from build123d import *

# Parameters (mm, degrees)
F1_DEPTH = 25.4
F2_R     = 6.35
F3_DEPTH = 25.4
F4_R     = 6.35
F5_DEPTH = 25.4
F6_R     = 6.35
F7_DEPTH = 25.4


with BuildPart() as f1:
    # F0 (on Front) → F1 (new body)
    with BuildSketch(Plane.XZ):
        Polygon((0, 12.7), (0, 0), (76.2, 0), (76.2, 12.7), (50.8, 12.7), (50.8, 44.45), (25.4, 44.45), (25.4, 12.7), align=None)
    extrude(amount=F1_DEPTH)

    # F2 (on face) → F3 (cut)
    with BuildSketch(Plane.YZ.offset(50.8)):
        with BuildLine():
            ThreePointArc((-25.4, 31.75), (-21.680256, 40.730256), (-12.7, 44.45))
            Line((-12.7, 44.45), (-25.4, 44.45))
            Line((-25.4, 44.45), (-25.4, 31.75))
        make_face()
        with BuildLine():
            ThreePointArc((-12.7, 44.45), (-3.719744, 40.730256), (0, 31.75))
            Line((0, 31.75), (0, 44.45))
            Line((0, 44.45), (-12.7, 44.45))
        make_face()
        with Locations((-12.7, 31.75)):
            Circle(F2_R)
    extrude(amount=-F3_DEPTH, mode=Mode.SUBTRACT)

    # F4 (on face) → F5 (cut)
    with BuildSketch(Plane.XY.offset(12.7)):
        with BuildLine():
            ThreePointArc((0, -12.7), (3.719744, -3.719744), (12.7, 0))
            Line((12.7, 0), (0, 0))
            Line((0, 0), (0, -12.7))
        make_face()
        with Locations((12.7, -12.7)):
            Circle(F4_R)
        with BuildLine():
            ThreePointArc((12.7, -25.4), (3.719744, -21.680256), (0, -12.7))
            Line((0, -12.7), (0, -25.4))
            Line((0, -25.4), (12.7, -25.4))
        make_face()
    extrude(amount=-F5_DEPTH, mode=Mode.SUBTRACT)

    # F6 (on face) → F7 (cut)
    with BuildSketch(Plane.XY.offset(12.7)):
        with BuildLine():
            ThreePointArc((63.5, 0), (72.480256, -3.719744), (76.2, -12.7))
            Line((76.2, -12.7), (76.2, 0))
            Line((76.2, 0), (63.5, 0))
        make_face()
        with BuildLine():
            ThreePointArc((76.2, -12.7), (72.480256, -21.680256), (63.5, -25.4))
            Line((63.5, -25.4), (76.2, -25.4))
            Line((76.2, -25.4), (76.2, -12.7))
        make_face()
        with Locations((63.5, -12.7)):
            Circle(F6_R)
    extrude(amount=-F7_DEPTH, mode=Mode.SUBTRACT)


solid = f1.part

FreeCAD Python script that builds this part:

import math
import FreeCAD as App
import Part
import Sketcher
from FreeCAD import Vector
Q = App.Units.Quantity

doc = App.newDocument("Part")
body = doc.addObject("PartDesign::Body", "Body")

# Sketch on XZ plane
sketch1 = doc.addObject("Sketcher::SketchObject", "Sketch")
body.addObject(sketch1)
sketch1.AttachmentSupport = (doc.XZ_Plane, [""])
sketch1.MapMode = "FlatFace"
sketch1.addGeometry(Part.LineSegment(Vector(0, 12.7, 0), Vector(0, 0, 0)), False)
sketch1.addGeometry(Part.LineSegment(Vector(0, 0, 0), Vector(76.2, 0, 0)), False)
sketch1.addGeometry(Part.LineSegment(Vector(76.2, 0, 0), Vector(76.2, 12.7, 0)), False)
sketch1.addGeometry(Part.LineSegment(Vector(76.2, 12.7, 0), Vector(50.8, 12.7, 0)), False)
sketch1.addGeometry(Part.LineSegment(Vector(50.8, 12.7, 0), Vector(50.8, 44.45, 0)), False)
sketch1.addGeometry(Part.LineSegment(Vector(50.8, 44.45, 0), Vector(25.4, 44.45, 0)), False)
sketch1.addGeometry(Part.LineSegment(Vector(25.4, 44.45, 0), Vector(25.4, 12.7, 0)), False)
sketch1.addGeometry(Part.LineSegment(Vector(25.4, 12.7, 0), Vector(0, 12.7, 0)), False)
sketch1.addConstraint(Sketcher.Constraint("Coincident", 0, 2, 1, 1))
sketch1.addConstraint(Sketcher.Constraint("Coincident", 1, 2, 2, 1))
sketch1.addConstraint(Sketcher.Constraint("Coincident", 2, 2, 3, 1))
sketch1.addConstraint(Sketcher.Constraint("Coincident", 3, 2, 4, 1))
sketch1.addConstraint(Sketcher.Constraint("Coincident", 4, 2, 5, 1))
sketch1.addConstraint(Sketcher.Constraint("Coincident", 5, 2, 6, 1))
sketch1.addConstraint(Sketcher.Constraint("Coincident", 6, 2, 7, 1))
sketch1.addConstraint(Sketcher.Constraint("Coincident", 7, 2, 0, 1))
sketch1.addConstraint(Sketcher.Constraint("Vertical", 0))
sketch1.addConstraint(Sketcher.Constraint("Horizontal", 1))
sketch1.addConstraint(Sketcher.Constraint("Vertical", 2))
sketch1.addConstraint(Sketcher.Constraint("Horizontal", 3))
sketch1.addConstraint(Sketcher.Constraint("Vertical", 4))
sketch1.addConstraint(Sketcher.Constraint("Horizontal", 5))
sketch1.addConstraint(Sketcher.Constraint("Vertical", 6))
sketch1.addConstraint(Sketcher.Constraint("Horizontal", 7))
sketch1.addConstraint(Sketcher.Constraint("Coincident", 0, 2, -1, 1))
sketch1.addConstraint(Sketcher.Constraint("Horizontal", 3, 2, 6, 2))
sketch1.addConstraint(Sketcher.Constraint("Equal", 3, 5))
sketch1.addConstraint(Sketcher.Constraint("Equal", 5, 7))
sketch1.addConstraint(Sketcher.Constraint("DistanceX", 1, 1, 1, 2, Q("3 in")))
sketch1.addConstraint(Sketcher.Constraint("DistanceY", 0, 2, 0, 1, Q("0.5 in")))
sketch1.addConstraint(Sketcher.Constraint("DistanceY", 4, 1, 4, 2, Q("1.25 in")))
pad1 = doc.addObject("PartDesign::Pad", "Pad")
body.addObject(pad1)
pad1.Profile = sketch1
pad1.Length = Q("1 in")

# Sketch on YZ plane
sketch2 = doc.addObject("Sketcher::SketchObject", "Sketch001")
body.addObject(sketch2)
sketch2.AttachmentSupport = (doc.YZ_Plane, [""])
sketch2.MapMode = "FlatFace"
sketch2.AttachmentOffset = App.Placement(Vector(0, 0, 2 * 25.4), App.Rotation())
sketch2.addGeometry(Part.ArcOfCircle(Part.Circle(Vector(-12.7, 31.75, 0), Vector(0, 0, 1), 12.7), math.radians(90.000002), math.radians(179.999998)), False)
sketch2.addGeometry(Part.LineSegment(Vector(-12.7, 44.45, 0), Vector(-25.4, 44.45, 0)), False)
sketch2.addGeometry(Part.LineSegment(Vector(-25.4, 44.45, 0), Vector(-25.4, 31.75, 0)), False)
sketch2.addGeometry(Part.ArcOfCircle(Part.Circle(Vector(-12.7, 31.75, 0), Vector(0, 0, 1), 12.7), math.radians(0.000002), math.radians(89.999998)), False)
sketch2.addGeometry(Part.LineSegment(Vector(0, 31.75, 0), Vector(0, 44.45, 0)), False)
sketch2.addGeometry(Part.LineSegment(Vector(0, 44.45, 0), Vector(-12.7, 44.45, 0)), False)
sketch2.addGeometry(Part.Circle(Vector(-12.7, 31.75, 0), Vector(0, 0, 1), 6.35), False)
sketch2.addConstraint(Sketcher.Constraint("Tangent", 0, 1, 1, 1))
sketch2.addConstraint(Sketcher.Constraint("Coincident", 1, 2, 2, 1))
sketch2.addConstraint(Sketcher.Constraint("Tangent", 2, 2, 0, 2))
sketch2.addConstraint(Sketcher.Constraint("Tangent", 3, 1, 4, 1))
sketch2.addConstraint(Sketcher.Constraint("Coincident", 4, 2, 5, 1))
sketch2.addConstraint(Sketcher.Constraint("Tangent", 5, 2, 3, 2))
sketch2.addConstraint(Sketcher.Constraint("Horizontal", 1))
sketch2.addConstraint(Sketcher.Constraint("Vertical", 2))
sketch2.addConstraint(Sketcher.Constraint("Vertical", 4))
sketch2.addConstraint(Sketcher.Constraint("Horizontal", 5))
sketch2.addConstraint(Sketcher.Constraint("Coincident", 3, 3, 0, 3))
sketch2.addConstraint(Sketcher.Constraint("Coincident", 6, 3, 0, 3))
sketch2.addConstraint(Sketcher.Constraint("Equal", 0, 3))
sketch2.addConstraint(Sketcher.Constraint("PointOnObject", 3, 1, -2))
sketch2.addConstraint(Sketcher.Constraint("Diameter", 6, Q("0.5 in")))
sketch2.addConstraint(Sketcher.Constraint("Radius", 0, Q("0.5 in")))
sketch2.addConstraint(Sketcher.Constraint("DistanceY", -1, 1, 0, 3, Q("1.25 in")))
pocket1 = doc.addObject("PartDesign::Pocket", "Pocket")
body.addObject(pocket1)
pocket1.Profile = sketch2
pocket1.Length = Q("1 in")

# Sketch on XY plane
sketch3 = doc.addObject("Sketcher::SketchObject", "Sketch002")
body.addObject(sketch3)
sketch3.AttachmentSupport = (doc.XY_Plane, [""])
sketch3.MapMode = "FlatFace"
sketch3.AttachmentOffset = App.Placement(Vector(0, 0, 0.5 * 25.4), App.Rotation())
sketch3.addGeometry(Part.ArcOfCircle(Part.Circle(Vector(12.7, -12.7, 0), Vector(0, 0, 1), 12.7), math.radians(90.000002), math.radians(179.999998)), False)
sketch3.addGeometry(Part.LineSegment(Vector(12.7, 0, 0), Vector(0, 0, 0)), False)
sketch3.addGeometry(Part.LineSegment(Vector(0, 0, 0), Vector(0, -12.7, 0)), False)
sketch3.addGeometry(Part.Circle(Vector(12.7, -12.7, 0), Vector(0, 0, 1), 6.35), False)
sketch3.addGeometry(Part.ArcOfCircle(Part.Circle(Vector(12.7, -12.7, 0), Vector(0, 0, 1), 12.7), math.radians(-179.999998), math.radians(-90.000002)), False)
sketch3.addGeometry(Part.LineSegment(Vector(0, -12.7, 0), Vector(0, -25.4, 0)), False)
sketch3.addGeometry(Part.LineSegment(Vector(0, -25.4, 0), Vector(12.7, -25.4, 0)), False)
sketch3.addConstraint(Sketcher.Constraint("Tangent", 0, 1, 1, 1))
sketch3.addConstraint(Sketcher.Constraint("Coincident", 1, 2, 2, 1))
sketch3.addConstraint(Sketcher.Constraint("Tangent", 2, 2, 0, 2))
sketch3.addConstraint(Sketcher.Constraint("Tangent", 4, 1, 5, 1))
sketch3.addConstraint(Sketcher.Constraint("Coincident", 5, 2, 6, 1))
sketch3.addConstraint(Sketcher.Constraint("Tangent", 6, 2, 4, 2))
sketch3.addConstraint(Sketcher.Constraint("Horizontal", 1))
sketch3.addConstraint(Sketcher.Constraint("Vertical", 2))
sketch3.addConstraint(Sketcher.Constraint("Vertical", 5))
sketch3.addConstraint(Sketcher.Constraint("Horizontal", 6))
sketch3.addConstraint(Sketcher.Constraint("Coincident", 1, 2, -1, 1))
sketch3.addConstraint(Sketcher.Constraint("Coincident", 3, 3, 0, 3))
sketch3.addConstraint(Sketcher.Constraint("Coincident", 4, 3, 0, 3))
sketch3.addConstraint(Sketcher.Constraint("Equal", 0, 4))
sketch3.addConstraint(Sketcher.Constraint("Diameter", 3, Q("0.5 in")))
sketch3.addConstraint(Sketcher.Constraint("Radius", 0, Q("0.5 in")))
pocket2 = doc.addObject("PartDesign::Pocket", "Pocket001")
body.addObject(pocket2)
pocket2.Profile = sketch3
pocket2.Length = Q("1 in")

# Sketch on XY plane
sketch4 = doc.addObject("Sketcher::SketchObject", "Sketch003")
body.addObject(sketch4)
sketch4.AttachmentSupport = (doc.XY_Plane, [""])
sketch4.MapMode = "FlatFace"
sketch4.AttachmentOffset = App.Placement(Vector(0, 0, 0.5 * 25.4), App.Rotation())
sketch4.addGeometry(Part.ArcOfCircle(Part.Circle(Vector(63.5, -12.7, 0), Vector(0, 0, 1), 12.7), math.radians(0.000002), math.radians(89.999998)), False)
sketch4.addGeometry(Part.LineSegment(Vector(76.2, -12.7, 0), Vector(76.2, 0, 0)), False)
sketch4.addGeometry(Part.LineSegment(Vector(76.2, 0, 0), Vector(63.5, 0, 0)), False)
sketch4.addGeometry(Part.ArcOfCircle(Part.Circle(Vector(63.5, -12.7, 0), Vector(0, 0, 1), 12.7), math.radians(-89.999998), math.radians(-0.000002)), False)
sketch4.addGeometry(Part.LineSegment(Vector(63.5, -25.4, 0), Vector(76.2, -25.4, 0)), False)
sketch4.addGeometry(Part.LineSegment(Vector(76.2, -25.4, 0), Vector(76.2, -12.7, 0)), False)
sketch4.addGeometry(Part.Circle(Vector(63.5, -12.7, 0), Vector(0, 0, 1), 6.35), False)
sketch4.addConstraint(Sketcher.Constraint("Tangent", 0, 1, 1, 1))
sketch4.addConstraint(Sketcher.Constraint("Coincident", 1, 2, 2, 1))
sketch4.addConstraint(Sketcher.Constraint("Tangent", 2, 2, 0, 2))
sketch4.addConstraint(Sketcher.Constraint("Tangent", 3, 1, 4, 1))
sketch4.addConstraint(Sketcher.Constraint("Coincident", 4, 2, 5, 1))
sketch4.addConstraint(Sketcher.Constraint("Tangent", 5, 2, 3, 2))
sketch4.addConstraint(Sketcher.Constraint("Vertical", 1))
sketch4.addConstraint(Sketcher.Constraint("Horizontal", 2))
sketch4.addConstraint(Sketcher.Constraint("Horizontal", 4))
sketch4.addConstraint(Sketcher.Constraint("Vertical", 5))
sketch4.addConstraint(Sketcher.Constraint("Coincident", 3, 3, 0, 3))
sketch4.addConstraint(Sketcher.Constraint("Coincident", 6, 3, 0, 3))
sketch4.addConstraint(Sketcher.Constraint("Equal", 0, 3))
sketch4.addConstraint(Sketcher.Constraint("PointOnObject", 1, 2, -1))
sketch4.addConstraint(Sketcher.Constraint("Diameter", 6, Q("0.5 in")))
sketch4.addConstraint(Sketcher.Constraint("Radius", 0, Q("0.5 in")))
sketch4.addConstraint(Sketcher.Constraint("DistanceX", -1, 1, 0, 1, Q("3 in")))
pocket3 = doc.addObject("PartDesign::Pocket", "Pocket002")
body.addObject(pocket3)
pocket3.Profile = sketch4
pocket3.Length = Q("1 in")

doc.recompute()
